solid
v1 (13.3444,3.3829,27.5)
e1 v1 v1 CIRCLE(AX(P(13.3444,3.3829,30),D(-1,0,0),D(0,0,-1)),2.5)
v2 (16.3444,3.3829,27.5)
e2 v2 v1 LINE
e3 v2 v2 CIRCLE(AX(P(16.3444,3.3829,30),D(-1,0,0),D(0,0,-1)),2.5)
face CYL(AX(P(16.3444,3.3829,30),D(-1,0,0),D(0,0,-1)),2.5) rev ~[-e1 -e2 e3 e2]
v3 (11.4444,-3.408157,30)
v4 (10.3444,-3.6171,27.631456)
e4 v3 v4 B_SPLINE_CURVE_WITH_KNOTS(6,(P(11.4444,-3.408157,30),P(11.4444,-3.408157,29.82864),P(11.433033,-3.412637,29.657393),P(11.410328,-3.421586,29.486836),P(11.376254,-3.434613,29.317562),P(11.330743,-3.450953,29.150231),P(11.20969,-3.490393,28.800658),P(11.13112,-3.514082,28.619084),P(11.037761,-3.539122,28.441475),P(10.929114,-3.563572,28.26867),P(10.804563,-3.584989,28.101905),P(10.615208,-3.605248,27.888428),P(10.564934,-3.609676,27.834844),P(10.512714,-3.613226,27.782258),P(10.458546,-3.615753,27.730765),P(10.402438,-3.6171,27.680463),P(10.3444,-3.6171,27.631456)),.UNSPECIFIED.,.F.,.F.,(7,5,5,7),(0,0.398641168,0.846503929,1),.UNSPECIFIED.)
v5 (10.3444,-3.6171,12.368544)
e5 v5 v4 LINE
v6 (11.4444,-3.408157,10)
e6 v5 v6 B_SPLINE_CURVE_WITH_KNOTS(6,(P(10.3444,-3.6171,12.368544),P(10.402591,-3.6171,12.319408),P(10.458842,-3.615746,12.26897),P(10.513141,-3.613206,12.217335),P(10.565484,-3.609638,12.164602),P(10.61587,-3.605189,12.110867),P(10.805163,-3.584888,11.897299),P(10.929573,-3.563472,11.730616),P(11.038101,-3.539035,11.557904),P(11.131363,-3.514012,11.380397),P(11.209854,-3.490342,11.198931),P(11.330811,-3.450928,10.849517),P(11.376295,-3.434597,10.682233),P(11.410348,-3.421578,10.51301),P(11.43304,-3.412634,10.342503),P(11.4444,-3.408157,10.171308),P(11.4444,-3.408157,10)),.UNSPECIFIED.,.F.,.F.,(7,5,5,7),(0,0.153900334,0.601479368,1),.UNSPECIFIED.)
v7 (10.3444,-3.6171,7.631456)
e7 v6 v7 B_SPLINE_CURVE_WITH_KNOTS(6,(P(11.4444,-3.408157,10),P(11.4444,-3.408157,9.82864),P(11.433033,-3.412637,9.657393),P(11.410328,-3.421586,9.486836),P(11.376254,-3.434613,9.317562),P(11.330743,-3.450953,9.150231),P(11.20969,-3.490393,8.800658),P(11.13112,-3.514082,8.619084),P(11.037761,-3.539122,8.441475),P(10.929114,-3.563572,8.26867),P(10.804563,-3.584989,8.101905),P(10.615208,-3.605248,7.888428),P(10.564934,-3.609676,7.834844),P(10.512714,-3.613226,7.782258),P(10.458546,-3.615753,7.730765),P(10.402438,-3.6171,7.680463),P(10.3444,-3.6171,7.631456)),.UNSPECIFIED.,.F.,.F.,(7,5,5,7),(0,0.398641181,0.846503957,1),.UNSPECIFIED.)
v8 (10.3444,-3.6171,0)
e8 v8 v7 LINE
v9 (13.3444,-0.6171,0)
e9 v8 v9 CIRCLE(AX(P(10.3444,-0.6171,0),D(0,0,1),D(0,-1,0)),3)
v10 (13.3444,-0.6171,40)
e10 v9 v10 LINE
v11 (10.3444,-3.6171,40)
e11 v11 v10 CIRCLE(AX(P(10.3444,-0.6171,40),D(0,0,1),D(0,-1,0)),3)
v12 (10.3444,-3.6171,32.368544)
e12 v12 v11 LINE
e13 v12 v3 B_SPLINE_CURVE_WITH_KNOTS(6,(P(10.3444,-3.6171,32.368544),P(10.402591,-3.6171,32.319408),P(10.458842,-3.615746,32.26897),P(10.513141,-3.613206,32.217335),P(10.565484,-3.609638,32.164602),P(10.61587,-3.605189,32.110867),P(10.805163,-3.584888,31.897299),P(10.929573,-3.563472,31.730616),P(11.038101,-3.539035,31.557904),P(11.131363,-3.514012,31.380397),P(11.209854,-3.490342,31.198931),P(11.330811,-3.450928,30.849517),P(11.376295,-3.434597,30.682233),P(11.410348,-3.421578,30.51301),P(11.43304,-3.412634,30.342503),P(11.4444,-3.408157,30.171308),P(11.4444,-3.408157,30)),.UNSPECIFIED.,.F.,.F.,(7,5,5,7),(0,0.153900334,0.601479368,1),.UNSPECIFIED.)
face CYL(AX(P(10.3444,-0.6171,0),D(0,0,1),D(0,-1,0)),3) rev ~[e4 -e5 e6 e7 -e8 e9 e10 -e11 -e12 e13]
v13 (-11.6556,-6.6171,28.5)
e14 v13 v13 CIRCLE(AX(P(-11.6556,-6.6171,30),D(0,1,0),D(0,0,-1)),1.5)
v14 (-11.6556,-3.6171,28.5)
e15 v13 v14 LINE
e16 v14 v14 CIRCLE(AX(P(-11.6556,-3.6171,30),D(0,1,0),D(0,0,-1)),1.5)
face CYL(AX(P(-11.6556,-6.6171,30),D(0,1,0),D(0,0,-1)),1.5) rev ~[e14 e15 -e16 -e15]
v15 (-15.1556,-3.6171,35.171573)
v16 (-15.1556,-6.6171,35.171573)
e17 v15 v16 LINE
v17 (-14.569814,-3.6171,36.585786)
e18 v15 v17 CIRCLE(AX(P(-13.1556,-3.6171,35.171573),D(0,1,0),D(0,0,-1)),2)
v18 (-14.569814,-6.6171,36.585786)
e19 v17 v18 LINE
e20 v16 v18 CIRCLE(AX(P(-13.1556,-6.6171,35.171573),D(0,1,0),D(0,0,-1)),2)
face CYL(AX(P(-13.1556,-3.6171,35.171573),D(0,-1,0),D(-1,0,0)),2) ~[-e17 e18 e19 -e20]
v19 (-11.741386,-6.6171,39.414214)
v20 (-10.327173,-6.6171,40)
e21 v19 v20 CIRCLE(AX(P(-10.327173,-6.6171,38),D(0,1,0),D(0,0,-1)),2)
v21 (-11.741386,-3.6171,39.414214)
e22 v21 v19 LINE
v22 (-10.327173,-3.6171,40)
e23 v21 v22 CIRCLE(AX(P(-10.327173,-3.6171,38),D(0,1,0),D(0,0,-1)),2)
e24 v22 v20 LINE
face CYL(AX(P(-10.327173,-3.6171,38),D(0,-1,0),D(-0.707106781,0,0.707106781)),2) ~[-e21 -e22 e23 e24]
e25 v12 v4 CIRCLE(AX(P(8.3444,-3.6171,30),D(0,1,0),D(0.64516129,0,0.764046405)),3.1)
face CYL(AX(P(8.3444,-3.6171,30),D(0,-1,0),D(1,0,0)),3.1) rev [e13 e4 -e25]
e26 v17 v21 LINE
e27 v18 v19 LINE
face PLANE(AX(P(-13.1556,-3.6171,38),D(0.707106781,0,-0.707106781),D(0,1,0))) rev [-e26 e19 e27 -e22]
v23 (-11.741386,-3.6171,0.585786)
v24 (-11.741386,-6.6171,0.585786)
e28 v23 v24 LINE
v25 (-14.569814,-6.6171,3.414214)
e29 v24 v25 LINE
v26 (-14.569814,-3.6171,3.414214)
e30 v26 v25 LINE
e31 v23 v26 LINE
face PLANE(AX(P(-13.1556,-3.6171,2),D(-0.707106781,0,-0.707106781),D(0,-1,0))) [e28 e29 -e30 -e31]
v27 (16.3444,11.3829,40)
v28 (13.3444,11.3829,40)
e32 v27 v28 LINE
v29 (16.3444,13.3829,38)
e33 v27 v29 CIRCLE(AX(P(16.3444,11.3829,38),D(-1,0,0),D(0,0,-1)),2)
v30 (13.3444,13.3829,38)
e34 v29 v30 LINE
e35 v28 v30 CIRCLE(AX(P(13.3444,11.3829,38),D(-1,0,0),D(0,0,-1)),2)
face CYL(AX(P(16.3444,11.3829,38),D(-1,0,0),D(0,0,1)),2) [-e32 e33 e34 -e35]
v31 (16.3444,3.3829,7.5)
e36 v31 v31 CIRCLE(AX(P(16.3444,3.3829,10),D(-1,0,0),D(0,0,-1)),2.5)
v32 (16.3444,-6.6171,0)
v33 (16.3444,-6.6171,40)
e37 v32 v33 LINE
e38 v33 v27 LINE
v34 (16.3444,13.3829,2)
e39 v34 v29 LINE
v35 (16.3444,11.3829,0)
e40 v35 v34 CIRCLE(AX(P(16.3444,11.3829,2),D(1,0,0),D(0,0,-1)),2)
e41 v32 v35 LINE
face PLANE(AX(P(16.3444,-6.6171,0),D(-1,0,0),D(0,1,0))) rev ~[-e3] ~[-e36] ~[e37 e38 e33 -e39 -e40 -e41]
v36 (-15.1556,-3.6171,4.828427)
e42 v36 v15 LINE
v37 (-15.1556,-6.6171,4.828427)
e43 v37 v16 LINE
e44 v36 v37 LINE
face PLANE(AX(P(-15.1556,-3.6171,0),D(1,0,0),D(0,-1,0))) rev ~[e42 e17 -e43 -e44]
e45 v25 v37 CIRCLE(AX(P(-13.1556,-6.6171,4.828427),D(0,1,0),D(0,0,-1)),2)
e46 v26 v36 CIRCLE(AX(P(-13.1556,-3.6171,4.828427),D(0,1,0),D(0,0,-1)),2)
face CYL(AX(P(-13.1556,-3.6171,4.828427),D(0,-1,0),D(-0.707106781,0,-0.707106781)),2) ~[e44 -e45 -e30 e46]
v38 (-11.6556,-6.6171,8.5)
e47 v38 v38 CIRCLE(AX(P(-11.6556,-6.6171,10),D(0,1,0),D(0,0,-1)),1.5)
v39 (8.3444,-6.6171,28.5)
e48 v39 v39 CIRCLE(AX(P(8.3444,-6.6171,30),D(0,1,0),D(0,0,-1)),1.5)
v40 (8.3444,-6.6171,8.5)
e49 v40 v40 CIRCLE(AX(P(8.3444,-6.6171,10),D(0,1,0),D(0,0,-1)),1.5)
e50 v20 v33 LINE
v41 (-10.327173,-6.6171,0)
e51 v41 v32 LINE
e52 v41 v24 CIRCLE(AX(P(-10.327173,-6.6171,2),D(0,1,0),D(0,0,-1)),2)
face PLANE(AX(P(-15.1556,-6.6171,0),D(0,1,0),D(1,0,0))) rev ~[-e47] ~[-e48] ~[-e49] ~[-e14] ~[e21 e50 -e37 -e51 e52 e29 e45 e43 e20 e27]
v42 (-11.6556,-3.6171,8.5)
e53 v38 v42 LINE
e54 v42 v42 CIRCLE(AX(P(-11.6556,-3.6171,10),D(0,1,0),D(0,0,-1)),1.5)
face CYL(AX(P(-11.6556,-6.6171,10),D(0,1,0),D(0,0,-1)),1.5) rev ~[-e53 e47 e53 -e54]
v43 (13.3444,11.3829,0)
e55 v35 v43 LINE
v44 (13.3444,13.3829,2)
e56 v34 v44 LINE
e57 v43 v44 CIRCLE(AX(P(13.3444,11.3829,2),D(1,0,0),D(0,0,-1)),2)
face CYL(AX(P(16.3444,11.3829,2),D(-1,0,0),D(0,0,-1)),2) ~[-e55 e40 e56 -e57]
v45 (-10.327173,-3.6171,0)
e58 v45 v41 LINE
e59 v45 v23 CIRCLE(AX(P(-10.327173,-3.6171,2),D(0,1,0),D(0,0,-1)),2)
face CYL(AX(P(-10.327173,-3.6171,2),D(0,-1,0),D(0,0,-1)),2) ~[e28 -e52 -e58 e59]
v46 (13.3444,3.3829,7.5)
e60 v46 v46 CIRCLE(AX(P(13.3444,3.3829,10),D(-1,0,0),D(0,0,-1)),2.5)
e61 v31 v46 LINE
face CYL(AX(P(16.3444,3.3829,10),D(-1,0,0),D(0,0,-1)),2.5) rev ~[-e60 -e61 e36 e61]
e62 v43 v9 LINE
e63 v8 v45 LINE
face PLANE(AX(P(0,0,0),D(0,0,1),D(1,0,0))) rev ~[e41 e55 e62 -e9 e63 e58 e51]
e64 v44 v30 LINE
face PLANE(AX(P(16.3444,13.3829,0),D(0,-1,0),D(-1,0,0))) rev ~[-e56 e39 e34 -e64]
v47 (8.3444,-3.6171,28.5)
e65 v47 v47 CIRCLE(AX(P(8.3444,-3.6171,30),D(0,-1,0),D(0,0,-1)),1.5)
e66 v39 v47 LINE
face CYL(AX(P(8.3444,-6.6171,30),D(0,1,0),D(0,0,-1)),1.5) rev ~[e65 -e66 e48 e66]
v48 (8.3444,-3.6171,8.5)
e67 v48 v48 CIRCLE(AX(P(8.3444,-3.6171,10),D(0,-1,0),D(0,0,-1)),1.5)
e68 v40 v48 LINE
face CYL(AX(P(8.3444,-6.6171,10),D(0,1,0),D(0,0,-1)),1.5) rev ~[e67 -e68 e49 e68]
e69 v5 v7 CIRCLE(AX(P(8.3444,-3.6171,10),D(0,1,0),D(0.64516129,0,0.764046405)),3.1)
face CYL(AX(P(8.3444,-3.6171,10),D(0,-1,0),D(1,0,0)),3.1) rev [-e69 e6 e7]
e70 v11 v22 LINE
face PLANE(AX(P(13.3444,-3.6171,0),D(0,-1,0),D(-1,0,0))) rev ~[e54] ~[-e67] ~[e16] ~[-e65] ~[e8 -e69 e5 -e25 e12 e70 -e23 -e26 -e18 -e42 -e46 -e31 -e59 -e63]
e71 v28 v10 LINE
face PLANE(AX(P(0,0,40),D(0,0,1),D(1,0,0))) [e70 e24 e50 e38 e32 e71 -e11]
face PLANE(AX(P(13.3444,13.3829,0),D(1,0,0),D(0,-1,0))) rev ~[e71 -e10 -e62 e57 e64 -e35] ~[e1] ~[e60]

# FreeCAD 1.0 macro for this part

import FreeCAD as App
import Part
import Sketcher

V = App.Vector
Q = App.Units.Quantity


def edges_at(feature, points):
    """Names of the edges that pass closest to the given points."""
    edges = feature.Shape.Edges
    near = lambda p: min(range(len(edges)), key=lambda i: edges[i].distToShape(Part.Vertex(*p))[0])
    return sorted({f"Edge{near(p) + 1}" for p in points})


def add_polygon(sketch, points):
    """Adds a closed chain of lines whose ends are joined by coincident constraints."""
    first, n = sketch.GeometryCount, len(points)
    for a, b in zip(points, points[1:] + points[:1]):
        sketch.addGeometry(Part.LineSegment(App.Vector(*a, 0), App.Vector(*b, 0)), False)
    for i in range(n):
        sketch.addConstraint(Sketcher.Constraint("Coincident", first + i, 2, first + (i + 1) % n, 1))

doc = App.newDocument("Part")
body = doc.addObject("PartDesign::Body", "Body")

# Sketch on XY plane
sketch1 = body.newObject("Sketcher::SketchObject", "Sketch")
sketch1.AttachmentSupport = (doc.getObject("XY_Plane"), [""])
sketch1.MapMode = "FlatFace"
add_polygon(sketch1, [(13.3, -3.6), (-15.2, -3.6), (-15.2, -6.6), (16.3, -6.6), (16.3, 13.4), (13.3, 13.4)])  # lines 0-5
sketch1.addConstraint([
    Sketcher.Constraint("Horizontal", 0),
    Sketcher.Constraint("Vertical", 1),
    Sketcher.Constraint("Horizontal", 2),
    Sketcher.Constraint("Vertical", 3),
    Sketcher.Constraint("Horizontal", 4),
    Sketcher.Constraint("Vertical", 5),
    Sketcher.Constraint("Equal", 4, 1),
    Sketcher.Constraint("DistanceX", 4, 2, 4, 1, Q("3 mm")),
    Sketcher.Constraint("DistanceY", 3, 1, 3, 2, Q("20 mm")),
    Sketcher.Constraint("DistanceX", 2, 1, 2, 2, Q("31.5 mm")),
    Sketcher.Constraint("DistanceY", 0, 2, -1, 1, Q("3.617 mm")),
    Sketcher.Constraint("DistanceX", 0, 2, -1, 1, Q("15.1556 mm")),
])
pad1 = body.newObject("PartDesign::Pad", "Pad")
pad1.Profile = sketch1
pad1.Length = 40
doc.recompute()

fillet = body.newObject("PartDesign::Fillet", "Fillet")
fillet.Base = (pad1, edges_at(pad1, [(13.344, -3.617, 20)]))
fillet.Radius = 3
doc.recompute()

fillet2 = body.newObject("PartDesign::Fillet", "Fillet001")
fillet2.Base = (fillet, edges_at(fillet, [(14.844, 13.383, 40), (14.844, 13.383, 0)]))
fillet2.Radius = 2

# Sketch on YZ plane
sketch2 = body.newObject("Sketcher::SketchObject", "Sketch001")
sketch2.AttachmentSupport = (doc.getObject("YZ_Plane"), [""])
sketch2.MapMode = "FlatFace"
sketch2.AttachmentOffset = App.Placement(V(0, 0, 16.3444), App.Rotation())
sketch2.addGeometry([
    Part.Circle(V(3.4, 30, 0), V(0, 0, 1), 2.5),
    Part.Circle(V(3.4, 10, 0), V(0, 0, 1), 2.5),
], False)
sketch2.addConstraint([
    Sketcher.Constraint("Equal", 0, 1),
    Sketcher.Constraint("Vertical", 0, 3, 1, 3),
    Sketcher.Constraint("Diameter", 0, Q("5 mm")),
    Sketcher.Constraint("DistanceY", -1, 1, 0, 3, Q("30 mm")),
    Sketcher.Constraint("DistanceY", -1, 1, 1, 3, Q("10 mm")),
    Sketcher.Constraint("DistanceX", -1, 1, 0, 3, Q("3.383 mm")),
])
doc.recompute()
hole = body.newObject("PartDesign::Hole", "Hole")
hole.Profile = sketch2
hole.ThreadType = "None"
hole.Diameter = 5
hole.DepthType = "ThroughAll"

# Sketch on XZ plane
sketch3 = body.newObject("Sketcher::SketchObject", "Sketch002")
sketch3.AttachmentSupport = (doc.getObject("XZ_Plane"), [""])
sketch3.MapMode = "FlatFace"
sketch3.AttachmentOffset = App.Placement(V(0, 0, 6.6171), App.Rotation())
sketch3.addGeometry([
    Part.Circle(V(8.3, 30, 0), V(0, 0, 1), 1.5),
    Part.Circle(V(-11.7, 30, 0), V(0, 0, 1), 1.5),
    Part.Circle(V(8.3, 10, 0), V(0, 0, 1), 1.5),
    Part.Circle(V(-11.7, 10, 0), V(0, 0, 1), 1.5),
], False)
sketch3.addConstraint([
    Sketcher.Constraint("Equal", 0, 1),
    Sketcher.Constraint("Equal", 1, 2),
    Sketcher.Constraint("Equal", 2, 3),
    Sketcher.Constraint("Horizontal", 0, 3, 1, 3),
    Sketcher.Constraint("Horizontal", 2, 3, 3, 3),
    Sketcher.Constraint("Vertical", 0, 3, 2, 3),
    Sketcher.Constraint("Vertical", 1, 3, 3, 3),
    Sketcher.Constraint("Diameter", 0, Q("3 mm")),
    Sketcher.Constraint("DistanceY", -1, 1, 0, 3, Q("30 mm")),
    Sketcher.Constraint("DistanceY", -1, 1, 2, 3, Q("10 mm")),
    Sketcher.Constraint("DistanceX", 1, 3, 0, 3, Q("20 mm")),
    Sketcher.Constraint("DistanceX", -1, 1, 0, 3, Q("8.3444 mm")),
])
doc.recompute()
hole2 = body.newObject("PartDesign::Hole", "Hole001")
hole2.Profile = sketch3
hole2.ThreadType = "None"
hole2.Diameter = 3
hole2.DepthType = "ThroughAll"

# Sketch on XZ plane
sketch4 = body.newObject("Sketcher::SketchObject", "Sketch003")
sketch4.AttachmentSupport = (doc.getObject("XZ_Plane"), [""])
sketch4.MapMode = "FlatFace"
sketch4.AttachmentOffset = App.Placement(V(0, 0, 3.6171), App.Rotation())
sketch4.addGeometry([
    Part.Circle(V(8.3, 30, 0), V(0, 0, 1), 3.1),
    Part.Circle(V(8.3, 30, 0), V(0, 0, 1), 1.5),
    Part.Circle(V(8.3, 10, 0), V(0, 0, 1), 3.1),
    Part.Circle(V(8.3, 10, 0), V(0, 0, 1), 1.5),
], False)
sketch4.addConstraint([
    Sketcher.Constraint("Coincident", 1, 3, 0, 3),
    Sketcher.Constraint("Coincident", 3, 3, 2, 3),
    Sketcher.Constraint("Equal", 0, 2),
    Sketcher.Constraint("Equal", 1, 3),
    Sketcher.Constraint("Vertical", 1, 3, 2, 3),
    Sketcher.Constraint("Diameter", 0, Q("6.2 mm")),
    Sketcher.Constraint("Diameter", 1, Q("3 mm")),
    Sketcher.Constraint("DistanceY", -1, 1, 0, 3, Q("30 mm")),
    Sketcher.Constraint("DistanceY", -1, 1, 2, 3, Q("10 mm")),
    Sketcher.Constraint("DistanceX", -1, 1, 0, 3, Q("8.3444 mm")),
])
pocket1 = body.newObject("PartDesign::Pocket", "Pocket")
pocket1.Profile = sketch4
pocket1.Length = 10
doc.recompute()

chamfer = body.newObject("PartDesign::Chamfer", "Chamfer")
chamfer.Base = (pocket1, edges_at(pocket1, [(-15.156, -5.117, 40), (-15.156, -5.117, 0)]))
chamfer.Size = 4
doc.recompute()

fillet3 = body.newObject("PartDesign::Fillet", "Fillet002")
fillet3.Base = (chamfer, edges_at(chamfer, [
    (-15.156, -5.117, 36),
    (-11.156, -5.117, 40),
    (-15.156, -5.117, 4),
    (-11.156, -5.117, 0),
]))
fillet3.Radius = 2

doc.recompute()
